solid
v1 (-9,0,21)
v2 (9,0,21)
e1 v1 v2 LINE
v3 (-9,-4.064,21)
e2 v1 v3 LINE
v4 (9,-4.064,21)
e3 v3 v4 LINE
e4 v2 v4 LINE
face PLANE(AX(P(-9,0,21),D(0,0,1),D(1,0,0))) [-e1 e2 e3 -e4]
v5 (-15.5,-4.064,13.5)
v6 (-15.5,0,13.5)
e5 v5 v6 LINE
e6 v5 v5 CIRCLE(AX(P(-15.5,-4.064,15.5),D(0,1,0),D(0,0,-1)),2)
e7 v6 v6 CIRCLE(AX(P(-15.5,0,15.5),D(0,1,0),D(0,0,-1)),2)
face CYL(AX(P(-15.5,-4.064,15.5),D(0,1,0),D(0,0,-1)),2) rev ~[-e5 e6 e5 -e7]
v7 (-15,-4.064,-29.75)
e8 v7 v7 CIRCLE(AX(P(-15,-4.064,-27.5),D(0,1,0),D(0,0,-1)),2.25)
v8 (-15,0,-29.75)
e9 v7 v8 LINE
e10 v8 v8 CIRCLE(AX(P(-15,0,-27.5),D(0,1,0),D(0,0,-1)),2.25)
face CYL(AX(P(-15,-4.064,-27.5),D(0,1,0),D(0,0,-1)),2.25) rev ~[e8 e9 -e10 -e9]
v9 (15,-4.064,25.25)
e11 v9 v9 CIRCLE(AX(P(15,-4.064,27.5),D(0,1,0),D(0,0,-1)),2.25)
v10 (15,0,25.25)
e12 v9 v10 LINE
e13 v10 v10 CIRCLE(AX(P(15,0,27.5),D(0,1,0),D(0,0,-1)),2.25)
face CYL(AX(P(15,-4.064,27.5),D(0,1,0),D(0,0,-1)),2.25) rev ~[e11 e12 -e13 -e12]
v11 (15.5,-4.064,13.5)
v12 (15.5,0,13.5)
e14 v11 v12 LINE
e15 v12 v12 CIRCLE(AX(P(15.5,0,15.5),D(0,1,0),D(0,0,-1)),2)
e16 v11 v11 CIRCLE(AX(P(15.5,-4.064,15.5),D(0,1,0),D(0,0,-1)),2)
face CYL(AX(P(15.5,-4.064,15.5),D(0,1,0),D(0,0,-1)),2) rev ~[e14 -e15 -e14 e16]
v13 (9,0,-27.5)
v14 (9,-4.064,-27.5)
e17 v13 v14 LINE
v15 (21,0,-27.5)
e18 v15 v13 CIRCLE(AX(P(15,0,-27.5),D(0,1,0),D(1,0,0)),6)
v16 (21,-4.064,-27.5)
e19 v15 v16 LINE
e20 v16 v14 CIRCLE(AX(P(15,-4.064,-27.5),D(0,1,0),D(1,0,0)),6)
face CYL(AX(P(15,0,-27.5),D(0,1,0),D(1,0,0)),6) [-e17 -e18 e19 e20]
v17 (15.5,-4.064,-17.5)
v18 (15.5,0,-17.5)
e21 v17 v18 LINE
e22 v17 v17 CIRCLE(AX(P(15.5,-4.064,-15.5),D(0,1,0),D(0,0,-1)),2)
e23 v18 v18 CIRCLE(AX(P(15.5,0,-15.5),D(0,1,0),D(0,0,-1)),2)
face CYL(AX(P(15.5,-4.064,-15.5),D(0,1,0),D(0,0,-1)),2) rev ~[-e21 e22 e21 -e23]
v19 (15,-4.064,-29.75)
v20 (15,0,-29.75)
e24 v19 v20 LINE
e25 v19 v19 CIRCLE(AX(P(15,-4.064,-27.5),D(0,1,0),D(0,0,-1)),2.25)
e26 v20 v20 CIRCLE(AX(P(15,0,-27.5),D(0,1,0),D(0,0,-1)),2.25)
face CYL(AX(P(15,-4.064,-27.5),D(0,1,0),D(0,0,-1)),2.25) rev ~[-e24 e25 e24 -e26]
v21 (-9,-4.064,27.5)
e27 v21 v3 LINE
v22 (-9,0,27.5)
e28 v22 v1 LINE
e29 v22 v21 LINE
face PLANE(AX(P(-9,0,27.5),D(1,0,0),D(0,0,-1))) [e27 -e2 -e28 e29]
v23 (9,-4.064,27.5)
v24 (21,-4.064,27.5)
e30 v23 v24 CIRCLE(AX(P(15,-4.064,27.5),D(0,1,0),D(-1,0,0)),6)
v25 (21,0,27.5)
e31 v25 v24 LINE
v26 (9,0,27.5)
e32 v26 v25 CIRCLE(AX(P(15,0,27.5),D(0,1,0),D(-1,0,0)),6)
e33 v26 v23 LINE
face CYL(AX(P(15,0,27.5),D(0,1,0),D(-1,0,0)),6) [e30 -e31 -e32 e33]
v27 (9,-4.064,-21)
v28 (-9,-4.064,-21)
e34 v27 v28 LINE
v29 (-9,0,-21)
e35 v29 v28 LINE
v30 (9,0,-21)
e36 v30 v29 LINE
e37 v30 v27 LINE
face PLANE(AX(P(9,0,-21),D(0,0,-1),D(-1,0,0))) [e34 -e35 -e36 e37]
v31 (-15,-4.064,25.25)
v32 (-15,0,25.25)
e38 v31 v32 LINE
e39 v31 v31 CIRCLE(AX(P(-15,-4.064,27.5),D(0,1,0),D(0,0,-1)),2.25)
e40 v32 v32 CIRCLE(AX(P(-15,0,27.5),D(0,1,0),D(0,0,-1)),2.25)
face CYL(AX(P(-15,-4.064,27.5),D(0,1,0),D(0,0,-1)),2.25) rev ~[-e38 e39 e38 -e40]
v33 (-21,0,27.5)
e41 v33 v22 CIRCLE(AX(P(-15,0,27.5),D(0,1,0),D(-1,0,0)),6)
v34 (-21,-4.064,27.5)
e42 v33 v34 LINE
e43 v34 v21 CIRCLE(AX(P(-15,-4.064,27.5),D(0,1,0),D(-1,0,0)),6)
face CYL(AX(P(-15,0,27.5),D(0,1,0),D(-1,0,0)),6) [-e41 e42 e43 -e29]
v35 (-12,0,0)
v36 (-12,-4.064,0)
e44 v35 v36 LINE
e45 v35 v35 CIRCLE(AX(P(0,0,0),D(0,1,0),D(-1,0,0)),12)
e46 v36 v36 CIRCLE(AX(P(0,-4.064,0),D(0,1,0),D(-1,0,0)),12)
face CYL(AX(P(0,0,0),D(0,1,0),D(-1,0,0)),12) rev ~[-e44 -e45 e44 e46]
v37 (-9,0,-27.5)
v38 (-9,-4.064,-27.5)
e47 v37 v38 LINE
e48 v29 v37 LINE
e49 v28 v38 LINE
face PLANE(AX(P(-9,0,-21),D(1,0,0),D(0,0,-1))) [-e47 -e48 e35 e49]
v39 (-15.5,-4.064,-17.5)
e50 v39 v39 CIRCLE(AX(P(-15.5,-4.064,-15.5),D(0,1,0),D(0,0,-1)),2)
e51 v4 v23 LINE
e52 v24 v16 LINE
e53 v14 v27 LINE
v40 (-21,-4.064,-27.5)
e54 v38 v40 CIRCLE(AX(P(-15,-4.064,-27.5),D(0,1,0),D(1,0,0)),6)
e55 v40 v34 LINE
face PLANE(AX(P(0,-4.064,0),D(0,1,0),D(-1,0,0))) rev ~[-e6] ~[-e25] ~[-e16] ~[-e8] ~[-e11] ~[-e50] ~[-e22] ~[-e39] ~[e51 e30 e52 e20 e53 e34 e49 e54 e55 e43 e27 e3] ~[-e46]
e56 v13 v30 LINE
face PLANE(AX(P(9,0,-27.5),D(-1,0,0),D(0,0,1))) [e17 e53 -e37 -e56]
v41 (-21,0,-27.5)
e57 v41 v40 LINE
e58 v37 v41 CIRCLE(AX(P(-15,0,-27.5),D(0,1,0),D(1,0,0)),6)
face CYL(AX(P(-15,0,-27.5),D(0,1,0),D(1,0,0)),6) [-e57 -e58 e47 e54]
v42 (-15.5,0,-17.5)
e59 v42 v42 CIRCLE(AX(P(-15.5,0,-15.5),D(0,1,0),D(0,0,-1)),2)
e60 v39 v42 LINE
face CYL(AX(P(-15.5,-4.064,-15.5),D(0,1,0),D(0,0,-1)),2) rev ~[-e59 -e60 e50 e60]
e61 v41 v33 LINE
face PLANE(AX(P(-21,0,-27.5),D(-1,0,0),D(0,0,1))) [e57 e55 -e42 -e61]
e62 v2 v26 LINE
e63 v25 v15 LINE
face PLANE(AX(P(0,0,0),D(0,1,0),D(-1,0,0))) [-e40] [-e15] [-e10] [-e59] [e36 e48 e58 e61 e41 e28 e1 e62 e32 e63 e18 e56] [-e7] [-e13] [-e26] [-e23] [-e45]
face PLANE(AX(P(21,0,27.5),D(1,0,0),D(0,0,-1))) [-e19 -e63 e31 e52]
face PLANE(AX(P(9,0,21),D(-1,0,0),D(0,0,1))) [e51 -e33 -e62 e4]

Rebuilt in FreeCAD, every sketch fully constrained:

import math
import FreeCAD as App
import Part
import Sketcher
from FreeCAD import Vector
Q = App.Units.Quantity

doc = App.newDocument("Part")
body = doc.addObject("PartDesign::Body", "Body")

# Sketch on XZ plane
sketch1 = doc.addObject("Sketcher::SketchObject", "Sketch")
body.addObject(sketch1)
sketch1.AttachmentSupport = (doc.XZ_Plane, [""])
sketch1.MapMode = "FlatFace"
sketch1.addGeometry([
    Part.LineSegment(Vector(-9, -21, 0), Vector(-9, -28, 0)),  # 0
    Part.ArcOfCircle(Part.Circle(Vector(-15, -28, 0), Vector(0, 0, 1), 6), math.radians(180), math.radians(360)),  # 1
    Part.LineSegment(Vector(-21, -28, 0), Vector(-21, 28, 0)),  # 2
    Part.ArcOfCircle(Part.Circle(Vector(-15, 28, 0), Vector(0, 0, 1), 6), math.radians(0), math.radians(180)),  # 3
    Part.LineSegment(Vector(-9, 28, 0), Vector(-9, 21, 0)),  # 4
    Part.LineSegment(Vector(-9, 21, 0), Vector(9, 21, 0)),  # 5
    Part.LineSegment(Vector(9, 21, 0), Vector(9, 28, 0)),  # 6
    Part.ArcOfCircle(Part.Circle(Vector(15, 28, 0), Vector(0, 0, 1), 6), math.radians(0), math.radians(180)),  # 7
    Part.LineSegment(Vector(21, 28, 0), Vector(21, -28, 0)),  # 8
    Part.ArcOfCircle(Part.Circle(Vector(15, -28, 0), Vector(0, 0, 1), 6), math.radians(180), math.radians(360)),  # 9
    Part.LineSegment(Vector(9, -28, 0), Vector(9, -21, 0)),  # 10
    Part.LineSegment(Vector(9, -21, 0), Vector(-9, -21, 0)),  # 11
    Part.Circle(Vector(0, 0, 0), Vector(0, 0, 1), 12),  # 12
], False)
sketch1.addConstraint([
    Sketcher.Constraint("Tangent", 0, 2, 1, 2),
    Sketcher.Constraint("Tangent", 1, 1, 2, 1),
    Sketcher.Constraint("Tangent", 2, 2, 3, 2),
    Sketcher.Constraint("Tangent", 3, 1, 4, 1),
    Sketcher.Constraint("Coincident", 4, 2, 5, 1),
    Sketcher.Constraint("Coincident", 5, 2, 6, 1),
    Sketcher.Constraint("Tangent", 6, 2, 7, 2),
    Sketcher.Constraint("Tangent", 7, 1, 8, 1),
    Sketcher.Constraint("Tangent", 8, 2, 9, 2),
    Sketcher.Constraint("Tangent", 9, 1, 10, 1),
    Sketcher.Constraint("Coincident", 10, 2, 11, 1),
    Sketcher.Constraint("Coincident", 11, 2, 0, 1),
    Sketcher.Constraint("Vertical", 0),
    Sketcher.Constraint("Vertical", 2),
    Sketcher.Constraint("Vertical", 4),
    Sketcher.Constraint("Horizontal", 5),
    Sketcher.Constraint("Vertical", 6),
    Sketcher.Constraint("Vertical", 8),
    Sketcher.Constraint("Vertical", 10),
    Sketcher.Constraint("Horizontal", 11),
    Sketcher.Constraint("Coincident", 12, 3, -1, 1),
    Sketcher.Constraint("Equal", 1, 3),
    Sketcher.Constraint("Equal", 3, 7),
    Sketcher.Constraint("Equal", 7, 9),
    Sketcher.Constraint("Symmetric", 1, 3, 7, 3, -1, 1),
    Sketcher.Constraint("Horizontal", 3, 3, 7, 3),
    Sketcher.Constraint("Horizontal", 1, 3, 9, 3),
    Sketcher.Constraint("Equal", 0, 4),
    Sketcher.Constraint("Diameter", 12, Q("24 mm")),
    Sketcher.Constraint("Radius", 1, Q("6 mm")),
    Sketcher.Constraint("DistanceX", 5, 1, 5, 2, Q("18 mm")),
    Sketcher.Constraint("DistanceY", 2, 1, 2, 2, Q("55 mm")),
    Sketcher.Constraint("DistanceY", 0, 2, 0, 1, Q("6.5 mm")),
])
pad1 = doc.addObject("PartDesign::Pad", "Pad")
body.addObject(pad1)
pad1.Profile = sketch1
pad1.Length = 4.064

# Sketch on XZ plane
sketch2 = doc.addObject("Sketcher::SketchObject", "Sketch001")
body.addObject(sketch2)
sketch2.AttachmentSupport = (doc.XZ_Plane, [""])
sketch2.MapMode = "FlatFace"
sketch2.AttachmentOffset = App.Placement(Vector(0, 0, 4.064), App.Rotation())
sketch2.addGeometry(Part.Circle(Vector(-15.5, -15.5, 0), Vector(0, 0, 1), 2), False)
sketch2.addConstraint([
    Sketcher.Constraint("Diameter", 0, Q("4 mm")),
    Sketcher.Constraint("DistanceX", 0, 3, -1, 1, Q("15.5 mm")),
    Sketcher.Constraint("DistanceY", 0, 3, -1, 1, Q("15.5 mm")),
])
doc.recompute()
hole = doc.addObject("PartDesign::Hole", "Hole")
body.addObject(hole)
hole.Profile = sketch2
hole.ThreadType = "None"
hole.Diameter = 4
hole.DepthType = "Dimension"
hole.Depth = 4.064
hole.DrillPoint = "Flat"

# Sketch on XZ plane
sketch3 = doc.addObject("Sketcher::SketchObject", "Sketch002")
body.addObject(sketch3)
sketch3.AttachmentSupport = (doc.XZ_Plane, [""])
sketch3.MapMode = "FlatFace"
sketch3.AttachmentOffset = App.Placement(Vector(0, 0, 4.064), App.Rotation())
sketch3.addGeometry(Part.Circle(Vector(-15.5, 15.5, 0), Vector(0, 0, 1), 2), False)
sketch3.addConstraint([
    Sketcher.Constraint("Diameter", 0, Q("4 mm")),
    Sketcher.Constraint("DistanceX", 0, 3, -1, 1, Q("15.5 mm")),
    Sketcher.Constraint("DistanceY", -1, 1, 0, 3, Q("15.5 mm")),
])
doc.recompute()
hole2 = doc.addObject("PartDesign::Hole", "Hole001")
body.addObject(hole2)
hole2.Profile = sketch3
hole2.ThreadType = "None"
hole2.Diameter = 4
hole2.DepthType = "Dimension"
hole2.Depth = 4.064
hole2.DrillPoint = "Flat"

# Sketch on XZ plane
sketch4 = doc.addObject("Sketcher::SketchObject", "Sketch003")
body.addObject(sketch4)
sketch4.AttachmentSupport = (doc.XZ_Plane, [""])
sketch4.MapMode = "FlatFace"
sketch4.AttachmentOffset = App.Placement(Vector(0, 0, 4.064), App.Rotation())
sketch4.addGeometry(Part.Circle(Vector(15.5, 15.5, 0), Vector(0, 0, 1), 2), False)
sketch4.addConstraint([
    Sketcher.Constraint("Diameter", 0, Q("4 mm")),
    Sketcher.Constraint("DistanceX", -1, 1, 0, 3, Q("15.5 mm")),
    Sketcher.Constraint("DistanceY", -1, 1, 0, 3, Q("15.5 mm")),
])
doc.recompute()
hole3 = doc.addObject("PartDesign::Hole", "Hole002")
body.addObject(hole3)
hole3.Profile = sketch4
hole3.ThreadType = "None"
hole3.Diameter = 4
hole3.DepthType = "Dimension"
hole3.Depth = 4.064
hole3.DrillPoint = "Flat"

# Sketch on XZ plane
sketch5 = doc.addObject("Sketcher::SketchObject", "Sketch004")
body.addObject(sketch5)
sketch5.AttachmentSupport = (doc.XZ_Plane, [""])
sketch5.MapMode = "FlatFace"
sketch5.AttachmentOffset = App.Placement(Vector(0, 0, 4.064), App.Rotation())
sketch5.addGeometry(Part.Circle(Vector(15.5, -15.5, 0), Vector(0, 0, 1), 2), False)
sketch5.addConstraint([
    Sketcher.Constraint("Diameter", 0, Q("4 mm")),
    Sketcher.Constraint("DistanceX", -1, 1, 0, 3, Q("15.5 mm")),
    Sketcher.Constraint("DistanceY", 0, 3, -1, 1, Q("15.5 mm")),
])
doc.recompute()
hole4 = doc.addObject("PartDesign::Hole", "Hole003")
body.addObject(hole4)
hole4.Profile = sketch5
hole4.ThreadType = "None"
hole4.Diameter = 4
hole4.DepthType = "Dimension"
hole4.Depth = 4.064
hole4.DrillPoint = "Flat"

# Sketch on XZ plane
sketch6 = doc.addObject("Sketcher::SketchObject", "Sketch005")
body.addObject(sketch6)
sketch6.AttachmentSupport = (doc.XZ_Plane, [""])
sketch6.MapMode = "FlatFace"
sketch6.AttachmentOffset = App.Placement(Vector(0, 0, 4.064), App.Rotation())
sketch6.addGeometry(Part.Circle(Vector(15, -27.5, 0), Vector(0, 0, 1), 2.2), False)
sketch6.addConstraint([
    Sketcher.Constraint("Diameter", 0, Q("4.5 mm")),
    Sketcher.Constraint("DistanceX", -1, 1, 0, 3, Q("15 mm")),
    Sketcher.Constraint("DistanceY", 0, 3, -1, 1, Q("27.5 mm")),
])
doc.recompute()
hole5 = doc.addObject("PartDesign::Hole", "Hole004")
body.addObject(hole5)
hole5.Profile = sketch6
hole5.ThreadType = "None"
hole5.Diameter = 4.5
hole5.DepthType = "Dimension"
hole5.Depth = 4.064
hole5.DrillPoint = "Flat"

# Sketch on XZ plane
sketch7 = doc.addObject("Sketcher::SketchObject", "Sketch006")
body.addObject(sketch7)
sketch7.AttachmentSupport = (doc.XZ_Plane, [""])
sketch7.MapMode = "FlatFace"
sketch7.AttachmentOffset = App.Placement(Vector(0, 0, 4.064), App.Rotation())
sketch7.addGeometry(Part.Circle(Vector(15, 27.5, 0), Vector(0, 0, 1), 2.2), False)
sketch7.addConstraint([
    Sketcher.Constraint("Diameter", 0, Q("4.5 mm")),
    Sketcher.Constraint("DistanceX", -1, 1, 0, 3, Q("15 mm")),
    Sketcher.Constraint("DistanceY", -1, 1, 0, 3, Q("27.5 mm")),
])
doc.recompute()
hole6 = doc.addObject("PartDesign::Hole", "Hole005")
body.addObject(hole6)
hole6.Profile = sketch7
hole6.ThreadType = "None"
hole6.Diameter = 4.5
hole6.DepthType = "Dimension"
hole6.Depth = 4.064
hole6.DrillPoint = "Flat"

# Sketch on XZ plane
sketch8 = doc.addObject("Sketcher::SketchObject", "Sketch007")
body.addObject(sketch8)
sketch8.AttachmentSupport = (doc.XZ_Plane, [""])
sketch8.MapMode = "FlatFace"
sketch8.AttachmentOffset = App.Placement(Vector(0, 0, 4.064), App.Rotation())
sketch8.addGeometry(Part.Circle(Vector(-15, 27.5, 0), Vector(0, 0, 1), 2.2), False)
sketch8.addConstraint([
    Sketcher.Constraint("Diameter", 0, Q("4.5 mm")),
    Sketcher.Constraint("DistanceX", 0, 3, -1, 1, Q("15 mm")),
    Sketcher.Constraint("DistanceY", -1, 1, 0, 3, Q("27.5 mm")),
])
doc.recompute()
hole7 = doc.addObject("PartDesign::Hole", "Hole006")
body.addObject(hole7)
hole7.Profile = sketch8
hole7.ThreadType = "None"
hole7.Diameter = 4.5
hole7.DepthType = "Dimension"
hole7.Depth = 4.064
hole7.DrillPoint = "Flat"

# Sketch on XZ plane
sketch9 = doc.addObject("Sketcher::SketchObject", "Sketch008")
body.addObject(sketch9)
sketch9.AttachmentSupport = (doc.XZ_Plane, [""])
sketch9.MapMode = "FlatFace"
sketch9.AttachmentOffset = App.Placement(Vector(0, 0, 4.064), App.Rotation())
sketch9.addGeometry(Part.Circle(Vector(-15, -27.5, 0), Vector(0, 0, 1), 2.2), False)
sketch9.addConstraint([
    Sketcher.Constraint("Diameter", 0, Q("4.5 mm")),
    Sketcher.Constraint("DistanceX", 0, 3, -1, 1, Q("15 mm")),
    Sketcher.Constraint("DistanceY", 0, 3, -1, 1, Q("27.5 mm")),
])
doc.recompute()
hole8 = doc.addObject("PartDesign::Hole", "Hole007")
body.addObject(hole8)
hole8.Profile = sketch9
hole8.ThreadType = "None"
hole8.Diameter = 4.5
hole8.DepthType = "Dimension"
hole8.Depth = 4.064
hole8.DrillPoint = "Flat"

doc.recompute()
